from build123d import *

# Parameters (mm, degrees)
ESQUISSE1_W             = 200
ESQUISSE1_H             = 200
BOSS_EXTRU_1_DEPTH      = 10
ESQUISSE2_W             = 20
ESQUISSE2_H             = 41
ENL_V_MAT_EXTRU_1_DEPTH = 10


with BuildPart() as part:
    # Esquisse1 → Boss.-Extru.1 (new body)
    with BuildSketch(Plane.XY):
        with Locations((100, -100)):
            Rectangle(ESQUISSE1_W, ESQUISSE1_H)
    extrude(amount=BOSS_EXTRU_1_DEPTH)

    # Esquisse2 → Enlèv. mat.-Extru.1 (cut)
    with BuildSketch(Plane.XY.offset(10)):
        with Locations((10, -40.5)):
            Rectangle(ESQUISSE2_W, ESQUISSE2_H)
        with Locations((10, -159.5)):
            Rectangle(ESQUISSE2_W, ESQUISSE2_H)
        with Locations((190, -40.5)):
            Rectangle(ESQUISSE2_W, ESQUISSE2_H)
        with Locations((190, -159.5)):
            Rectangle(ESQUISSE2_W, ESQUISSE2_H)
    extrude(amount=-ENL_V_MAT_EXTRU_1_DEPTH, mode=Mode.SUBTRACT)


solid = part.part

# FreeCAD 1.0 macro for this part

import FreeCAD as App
import Part
import Sketcher

V = App.Vector
Q = App.Units.Quantity


def add_polygon(sketch, points):
    """Adds a closed chain of lines whose ends are joined by coincident constraints."""
    first, n = sketch.GeometryCount, len(points)
    for a, b in zip(points, points[1:] + points[:1]):
        sketch.addGeometry(Part.LineSegment(App.Vector(*a, 0), App.Vector(*b, 0)), False)
    for i in range(n):
        sketch.addConstraint(Sketcher.Constraint("Coincident", first + i, 2, first + (i + 1) % n, 1))

doc = App.newDocument("Part")
body = doc.addObject("PartDesign::Body", "Body")

sketch1 = body.newObject("Sketcher::SketchObject", "Sketch")
sketch1.AttachmentSupport = (doc.getObject("XY_Plane"), [""])
sketch1.MapMode = "FlatFace"
add_polygon(sketch1, [(0, 0), (0, -200), (200, -200), (200, 0)])
sketch1.addConstraint([
    Sketcher.Constraint("Vertical", 0),
    Sketcher.Constraint("Horizontal", 1),
    Sketcher.Constraint("Vertical", 2),
    Sketcher.Constraint("Horizontal", 3),
    Sketcher.Constraint("Coincident", 3, 2, -1, 1),
    Sketcher.Constraint("Equal", 3, 0),
    Sketcher.Constraint("DistanceX", 1, 1, 1, 2, Q("200 mm")),
])
pad1 = body.newObject("PartDesign::Pad", "Pad")
pad1.Profile = sketch1
pad1.Length = 10

sketch2 = body.newObject("Sketcher::SketchObject", "Sketch001")
sketch2.AttachmentSupport = (doc.getObject("XY_Plane"), [""])
sketch2.MapMode = "FlatFace"
sketch2.AttachmentOffset = App.Placement(V(0, 0, 10), App.Rotation())
add_polygon(sketch2, [(0, -20), (0, -61), (20, -61), (20, -20)])
add_polygon(sketch2, [(0, -139), (0, -180), (20, -180), (20, -139)])
add_polygon(sketch2, [(180, -20), (180, -61), (200, -61), (200, -20)])
add_polygon(sketch2, [(180, -139), (180, -180), (200, -180), (200, -139)])
sketch2.addConstraint([
    Sketcher.Constraint("Vertical", 0),
    Sketcher.Constraint("Horizontal", 1),
    Sketcher.Constraint("Vertical", 2),
    Sketcher.Constraint("Horizontal", 3),
    Sketcher.Constraint("Vertical", 4),
    Sketcher.Constraint("Horizontal", 5),
    Sketcher.Constraint("Vertical", 6),
    Sketcher.Constraint("Horizontal", 7),
    Sketcher.Constraint("Vertical", 8),
    Sketcher.Constraint("Horizontal", 9),
    Sketcher.Constraint("Vertical", 10),
    Sketcher.Constraint("Horizontal", 11),
    Sketcher.Constraint("Vertical", 12),
    Sketcher.Constraint("Horizontal", 13),
    Sketcher.Constraint("Vertical", 14),
    Sketcher.Constraint("Horizontal", 15),
    Sketcher.Constraint("PointOnObject", 0, 2, -2),
    Sketcher.Constraint("PointOnObject", 4, 2, -2),
    Sketcher.Constraint("Horizontal", 1, 2, 8, 2),
    Sketcher.Constraint("Horizontal", 3, 2, 10, 2),
    Sketcher.Constraint("Horizontal", 5, 2, 12, 2),
    Sketcher.Constraint("Horizontal", 7, 2, 14, 2),
    Sketcher.Constraint("Vertical", 2, 2, 5, 2),
    Sketcher.Constraint("Vertical", 11, 2, 12, 2),
    Sketcher.Constraint("Vertical", 10, 2, 13, 2),
    Sketcher.Constraint("Equal", 7, 9),
    Sketcher.Constraint("Equal", 2, 4),
    Sketcher.Constraint("DistanceX", 1, 1, 1, 2, Q("20 mm")),
    Sketcher.Constraint("DistanceY", 0, 2, 0, 1, Q("41 mm")),
    Sketcher.Constraint("DistanceY", 0, 2, -1, 1, Q("61 mm")),
    Sketcher.Constraint("DistanceY", 4, 2, -1, 1, Q("180 mm")),
    Sketcher.Constraint("DistanceX", -1, 1, 8, 2, Q("180 mm")),
])
pocket1 = body.newObject("PartDesign::Pocket", "Pocket")
pocket1.Profile = sketch2
pocket1.Length = 10

doc.recompute()
